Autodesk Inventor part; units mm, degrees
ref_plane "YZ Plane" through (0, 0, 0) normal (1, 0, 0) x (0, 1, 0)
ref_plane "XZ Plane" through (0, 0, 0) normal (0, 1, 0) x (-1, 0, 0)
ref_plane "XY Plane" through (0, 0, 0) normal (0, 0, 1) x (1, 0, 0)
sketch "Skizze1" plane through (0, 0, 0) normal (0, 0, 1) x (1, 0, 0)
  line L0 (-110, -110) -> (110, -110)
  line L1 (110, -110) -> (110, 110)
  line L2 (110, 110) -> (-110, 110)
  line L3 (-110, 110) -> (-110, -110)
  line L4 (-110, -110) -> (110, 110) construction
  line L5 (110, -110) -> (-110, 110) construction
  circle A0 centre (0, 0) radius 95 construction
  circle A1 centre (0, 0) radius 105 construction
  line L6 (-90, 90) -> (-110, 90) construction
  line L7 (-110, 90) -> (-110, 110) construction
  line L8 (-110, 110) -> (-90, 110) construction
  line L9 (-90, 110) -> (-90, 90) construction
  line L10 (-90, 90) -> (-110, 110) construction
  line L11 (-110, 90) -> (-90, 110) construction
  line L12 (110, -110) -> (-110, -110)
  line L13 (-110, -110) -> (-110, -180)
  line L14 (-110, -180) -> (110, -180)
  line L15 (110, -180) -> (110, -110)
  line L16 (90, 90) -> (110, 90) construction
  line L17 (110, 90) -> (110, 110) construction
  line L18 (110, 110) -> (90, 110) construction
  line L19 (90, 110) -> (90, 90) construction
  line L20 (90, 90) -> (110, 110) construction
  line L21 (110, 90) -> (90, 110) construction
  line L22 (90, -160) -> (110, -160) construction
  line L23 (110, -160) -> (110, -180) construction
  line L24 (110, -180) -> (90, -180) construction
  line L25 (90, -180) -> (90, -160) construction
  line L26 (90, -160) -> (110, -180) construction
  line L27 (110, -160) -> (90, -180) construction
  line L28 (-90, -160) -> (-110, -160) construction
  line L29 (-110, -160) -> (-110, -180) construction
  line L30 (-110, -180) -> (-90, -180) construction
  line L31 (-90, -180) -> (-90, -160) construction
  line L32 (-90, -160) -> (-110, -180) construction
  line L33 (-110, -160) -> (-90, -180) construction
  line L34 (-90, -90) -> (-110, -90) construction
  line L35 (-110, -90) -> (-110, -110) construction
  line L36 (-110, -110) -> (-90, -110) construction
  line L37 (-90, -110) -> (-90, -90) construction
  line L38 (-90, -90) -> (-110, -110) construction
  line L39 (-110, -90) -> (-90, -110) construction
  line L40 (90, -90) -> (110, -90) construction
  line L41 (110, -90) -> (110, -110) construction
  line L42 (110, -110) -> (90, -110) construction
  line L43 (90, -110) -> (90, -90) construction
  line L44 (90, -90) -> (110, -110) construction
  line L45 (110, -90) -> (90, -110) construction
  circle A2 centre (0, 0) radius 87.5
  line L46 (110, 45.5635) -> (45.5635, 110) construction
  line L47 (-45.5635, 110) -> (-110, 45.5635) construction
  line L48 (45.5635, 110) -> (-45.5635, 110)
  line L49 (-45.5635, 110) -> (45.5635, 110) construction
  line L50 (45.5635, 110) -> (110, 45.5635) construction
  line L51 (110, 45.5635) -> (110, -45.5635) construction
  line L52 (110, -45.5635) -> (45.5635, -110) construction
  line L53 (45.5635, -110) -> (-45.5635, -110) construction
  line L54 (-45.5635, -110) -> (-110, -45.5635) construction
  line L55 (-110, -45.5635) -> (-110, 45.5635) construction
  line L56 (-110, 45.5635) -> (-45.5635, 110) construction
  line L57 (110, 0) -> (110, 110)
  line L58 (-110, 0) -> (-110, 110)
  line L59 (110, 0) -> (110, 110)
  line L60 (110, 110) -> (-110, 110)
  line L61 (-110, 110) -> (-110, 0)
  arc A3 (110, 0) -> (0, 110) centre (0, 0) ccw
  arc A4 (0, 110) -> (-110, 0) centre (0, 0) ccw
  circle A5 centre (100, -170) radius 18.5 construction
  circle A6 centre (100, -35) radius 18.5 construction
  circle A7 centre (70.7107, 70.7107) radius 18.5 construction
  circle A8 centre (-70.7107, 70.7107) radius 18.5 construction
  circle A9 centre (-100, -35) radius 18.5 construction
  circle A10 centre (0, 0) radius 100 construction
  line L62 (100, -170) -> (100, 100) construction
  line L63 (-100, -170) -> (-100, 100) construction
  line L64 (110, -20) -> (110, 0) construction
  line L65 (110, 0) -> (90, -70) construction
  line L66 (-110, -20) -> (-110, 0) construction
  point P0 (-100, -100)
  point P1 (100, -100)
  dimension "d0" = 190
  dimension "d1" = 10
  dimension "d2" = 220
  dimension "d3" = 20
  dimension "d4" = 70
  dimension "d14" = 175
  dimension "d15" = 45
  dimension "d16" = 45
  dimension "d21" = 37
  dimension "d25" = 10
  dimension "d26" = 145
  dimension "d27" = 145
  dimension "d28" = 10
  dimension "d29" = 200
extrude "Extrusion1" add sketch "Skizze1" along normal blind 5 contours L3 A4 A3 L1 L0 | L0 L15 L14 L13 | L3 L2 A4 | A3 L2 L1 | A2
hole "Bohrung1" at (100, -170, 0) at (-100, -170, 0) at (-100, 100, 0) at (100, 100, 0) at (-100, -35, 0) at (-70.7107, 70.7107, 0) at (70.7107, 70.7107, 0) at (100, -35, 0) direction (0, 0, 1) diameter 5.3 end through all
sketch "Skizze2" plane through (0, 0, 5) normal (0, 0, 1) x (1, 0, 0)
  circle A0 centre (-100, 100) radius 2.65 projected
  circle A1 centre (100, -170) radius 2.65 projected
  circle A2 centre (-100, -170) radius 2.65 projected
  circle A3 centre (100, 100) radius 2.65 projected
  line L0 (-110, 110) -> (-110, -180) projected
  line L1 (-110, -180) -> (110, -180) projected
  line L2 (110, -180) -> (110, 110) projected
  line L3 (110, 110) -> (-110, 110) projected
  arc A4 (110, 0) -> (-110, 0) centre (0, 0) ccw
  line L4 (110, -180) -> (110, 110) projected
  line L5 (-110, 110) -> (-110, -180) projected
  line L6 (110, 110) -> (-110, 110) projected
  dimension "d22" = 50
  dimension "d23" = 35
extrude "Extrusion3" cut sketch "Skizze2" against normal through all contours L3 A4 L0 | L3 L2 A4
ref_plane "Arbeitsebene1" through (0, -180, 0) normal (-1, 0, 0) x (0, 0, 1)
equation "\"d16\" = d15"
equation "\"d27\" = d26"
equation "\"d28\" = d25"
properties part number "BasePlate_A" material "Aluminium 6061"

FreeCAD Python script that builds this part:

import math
import FreeCAD as App
import Part
import Sketcher


def add_polygon(sketch, points):
    """Adds a closed chain of lines whose ends are joined by coincident constraints."""
    first, n = sketch.GeometryCount, len(points)
    for a, b in zip(points, points[1:] + points[:1]):
        sketch.addGeometry(Part.LineSegment(App.Vector(*a, 0), App.Vector(*b, 0)), False)
    for i in range(n):
        sketch.addConstraint(Sketcher.Constraint("Coincident", first + i, 2, first + (i + 1) % n, 1))

doc = App.newDocument("Part")
params = doc.addObject("Spreadsheet::Sheet", "Params")
for row, (alias, value) in enumerate([
    ("sketch1_width", "220 mm"),
    ("sketch1_height", "290 mm"),
    ("pad1_length", "5 mm"),
    ("sketch2_diameter", "5.3 mm"),
    ("hole_diameter", "5.3 mm"),
    ("sketch3_radius", "110 mm"),
    ("sketch3_diameter", "5.3 mm"),
], start=1):
    params.set(f"A{row}", alias)
    params.set(f"B{row}", "=" + value)
    params.setAlias(f"B{row}", alias)

body = doc.addObject("PartDesign::Body", "Body")

# Sketch on XY plane
sketch1 = body.newObject("Sketcher::SketchObject", "Sketch")
sketch1.AttachmentSupport = (doc.getObject("XY_Plane"), [""])
sketch1.MapMode = "FlatFace"
add_polygon(sketch1, [(-110, -180), (110, -180), (110, 110), (-110, 110)])  # lines 0-3
sketch1.addConstraint(Sketcher.Constraint("Horizontal", 0))
sketch1.addConstraint(Sketcher.Constraint("Vertical", 1))
sketch1.addConstraint(Sketcher.Constraint("Horizontal", 2))
sketch1.addConstraint(Sketcher.Constraint("Vertical", 3))
sketch1.addConstraint(Sketcher.Constraint("DistanceX", 0, 1, 0, 2, 220.0))
sketch1.addConstraint(Sketcher.Constraint("DistanceY", 1, 1, 1, 2, 290.0))
sketch1.addConstraint(Sketcher.Constraint("DistanceX", -1, 1, 0, 2, 110.0))
sketch1.addConstraint(Sketcher.Constraint("DistanceY", 0, 2, -1, 1, 180.0))
sketch1.setExpression("Constraints[8]", "Params.sketch1_width")
sketch1.setExpression("Constraints[9]", "Params.sketch1_height")
pad1 = body.newObject("PartDesign::Pad", "Pad")
pad1.Profile = sketch1
pad1.setExpression("Length", "Params.pad1_length")

# Sketch on XY plane
sketch2 = body.newObject("Sketcher::SketchObject", "Sketch001")
sketch2.AttachmentSupport = (doc.getObject("XY_Plane"), [""])
sketch2.MapMode = "FlatFace"
sketch2.addGeometry(Part.Circle(App.Vector(100, -170, 0), App.Vector(0, 0, 1), 2.6), False)
sketch2.addGeometry(Part.Circle(App.Vector(-100, -170, 0), App.Vector(0, 0, 1), 2.6), False)
sketch2.addGeometry(Part.Circle(App.Vector(-100, 100, 0), App.Vector(0, 0, 1), 2.6), False)
sketch2.addGeometry(Part.Circle(App.Vector(100, 100, 0), App.Vector(0, 0, 1), 2.6), False)
sketch2.addGeometry(Part.Circle(App.Vector(-100, -35, 0), App.Vector(0, 0, 1), 2.6), False)
sketch2.addGeometry(Part.Circle(App.Vector(-70.7, 70.7, 0), App.Vector(0, 0, 1), 2.6), False)
sketch2.addGeometry(Part.Circle(App.Vector(70.7, 70.7, 0), App.Vector(0, 0, 1), 2.6), False)
sketch2.addGeometry(Part.Circle(App.Vector(100, -35, 0), App.Vector(0, 0, 1), 2.6), False)
sketch2.addConstraint(Sketcher.Constraint("Equal", 0, 1))
sketch2.addConstraint(Sketcher.Constraint("Equal", 1, 2))
sketch2.addConstraint(Sketcher.Constraint("Equal", 2, 3))
sketch2.addConstraint(Sketcher.Constraint("Equal", 3, 4))
sketch2.addConstraint(Sketcher.Constraint("Equal", 4, 5))
sketch2.addConstraint(Sketcher.Constraint("Equal", 5, 6))
sketch2.addConstraint(Sketcher.Constraint("Equal", 6, 7))
sketch2.addConstraint(Sketcher.Constraint("Symmetric", 0, 3, 1, 3, -2))
sketch2.addConstraint(Sketcher.Constraint("Symmetric", 2, 3, 3, 3, -2))
sketch2.addConstraint(Sketcher.Constraint("Symmetric", 5, 3, 6, 3, -2))
sketch2.addConstraint(Sketcher.Constraint("Symmetric", 4, 3, 7, 3, -2))
sketch2.addConstraint(Sketcher.Constraint("Vertical", 1, 3, 2, 3))
sketch2.addConstraint(Sketcher.Constraint("Vertical", 2, 3, 4, 3))
sketch2.addConstraint(Sketcher.Constraint("Diameter", 0, 5.3))
sketch2.addConstraint(Sketcher.Constraint("DistanceX", -1, 1, 0, 3, 100.0))
sketch2.addConstraint(Sketcher.Constraint("DistanceY", 0, 3, -1, 1, 170.0))
sketch2.addConstraint(Sketcher.Constraint("DistanceY", -1, 1, 2, 3, 100.0))
sketch2.addConstraint(Sketcher.Constraint("DistanceY", 4, 3, -1, 1, 35.0))
sketch2.addConstraint(Sketcher.Constraint("DistanceX", 5, 3, -1, 1, 70.7107))
sketch2.addConstraint(Sketcher.Constraint("DistanceY", -1, 1, 5, 3, 70.7107))
sketch2.setExpression("Constraints[13]", "Params.sketch2_diameter")
doc.recompute()
hole = body.newObject("PartDesign::Hole", "Hole")
hole.Profile = sketch2
hole.ThreadType = "None"
hole.setExpression("Diameter", "Params.hole_diameter")
hole.DepthType = "ThroughAll"
hole.Reversed = True

# Sketch on XY plane
sketch3 = body.newObject("Sketcher::SketchObject", "Sketch002")
sketch3.AttachmentSupport = (doc.getObject("XY_Plane"), [""])
sketch3.MapMode = "FlatFace"
sketch3.AttachmentOffset = App.Placement(App.Vector(0, 0, 5), App.Rotation())
sketch3.addGeometry(Part.LineSegment(App.Vector(0, 110, 0), App.Vector(-110, 110, 0)), False)
sketch3.addGeometry(Part.LineSegment(App.Vector(-110, 110, 0), App.Vector(-110, 0, 0)), False)
sketch3.addGeometry(Part.ArcOfCircle(Part.Circle(App.Vector(0, 0, 0), App.Vector(0, 0, 1), 110), math.radians(90), math.radians(180)), False)
sketch3.addGeometry(Part.Circle(App.Vector(-100, 100, 0), App.Vector(0, 0, 1), 2.6), False)
sketch3.addGeometry(Part.LineSegment(App.Vector(110, 110, 0), App.Vector(0, 110, 0)), False)
sketch3.addGeometry(Part.ArcOfCircle(Part.Circle(App.Vector(0, 0, 0), App.Vector(0, 0, 1), 110), math.radians(0), math.radians(90)), False)
sketch3.addGeometry(Part.LineSegment(App.Vector(110, 0, 0), App.Vector(110, 110, 0)), False)
sketch3.addGeometry(Part.Circle(App.Vector(100, 100, 0), App.Vector(0, 0, 1), 2.6), False)
sketch3.addConstraint(Sketcher.Constraint("Coincident", 0, 2, 1, 1))
sketch3.addConstraint(Sketcher.Constraint("Tangent", 1, 2, 2, 2))
sketch3.addConstraint(Sketcher.Constraint("Tangent", 2, 1, 0, 1))
sketch3.addConstraint(Sketcher.Constraint("Tangent", 4, 2, 5, 2))
sketch3.addConstraint(Sketcher.Constraint("Tangent", 5, 1, 6, 1))
sketch3.addConstraint(Sketcher.Constraint("Coincident", 6, 2, 4, 1))
sketch3.addConstraint(Sketcher.Constraint("Horizontal", 0))
sketch3.addConstraint(Sketcher.Constraint("Vertical", 1))
sketch3.addConstraint(Sketcher.Constraint("Horizontal", 4))
sketch3.addConstraint(Sketcher.Constraint("Vertical", 6))
sketch3.addConstraint(Sketcher.Constraint("Coincident", 2, 3, -1, 1))
sketch3.addConstraint(Sketcher.Constraint("Coincident", 5, 3, -1, 1))
sketch3.addConstraint(Sketcher.Constraint("Equal", 2, 5))
sketch3.addConstraint(Sketcher.Constraint("Equal", 3, 7))
sketch3.addConstraint(Sketcher.Constraint("Symmetric", 3, 3, 7, 3, -2))
sketch3.addConstraint(Sketcher.Constraint("Radius", 2, 110.0))
sketch3.addConstraint(Sketcher.Constraint("Diameter", 3, 5.3))
sketch3.addConstraint(Sketcher.Constraint("DistanceX", 3, 3, -1, 1, 100.0))
sketch3.addConstraint(Sketcher.Constraint("DistanceY", -1, 1, 3, 3, 100.0))
sketch3.setExpression("Constraints[15]", "Params.sketch3_radius")
sketch3.setExpression("Constraints[16]", "Params.sketch3_diameter")
pocket1 = body.newObject("PartDesign::Pocket", "Pocket")
pocket1.Profile = sketch3
pocket1.Type = "ThroughAll"

doc.recompute()
